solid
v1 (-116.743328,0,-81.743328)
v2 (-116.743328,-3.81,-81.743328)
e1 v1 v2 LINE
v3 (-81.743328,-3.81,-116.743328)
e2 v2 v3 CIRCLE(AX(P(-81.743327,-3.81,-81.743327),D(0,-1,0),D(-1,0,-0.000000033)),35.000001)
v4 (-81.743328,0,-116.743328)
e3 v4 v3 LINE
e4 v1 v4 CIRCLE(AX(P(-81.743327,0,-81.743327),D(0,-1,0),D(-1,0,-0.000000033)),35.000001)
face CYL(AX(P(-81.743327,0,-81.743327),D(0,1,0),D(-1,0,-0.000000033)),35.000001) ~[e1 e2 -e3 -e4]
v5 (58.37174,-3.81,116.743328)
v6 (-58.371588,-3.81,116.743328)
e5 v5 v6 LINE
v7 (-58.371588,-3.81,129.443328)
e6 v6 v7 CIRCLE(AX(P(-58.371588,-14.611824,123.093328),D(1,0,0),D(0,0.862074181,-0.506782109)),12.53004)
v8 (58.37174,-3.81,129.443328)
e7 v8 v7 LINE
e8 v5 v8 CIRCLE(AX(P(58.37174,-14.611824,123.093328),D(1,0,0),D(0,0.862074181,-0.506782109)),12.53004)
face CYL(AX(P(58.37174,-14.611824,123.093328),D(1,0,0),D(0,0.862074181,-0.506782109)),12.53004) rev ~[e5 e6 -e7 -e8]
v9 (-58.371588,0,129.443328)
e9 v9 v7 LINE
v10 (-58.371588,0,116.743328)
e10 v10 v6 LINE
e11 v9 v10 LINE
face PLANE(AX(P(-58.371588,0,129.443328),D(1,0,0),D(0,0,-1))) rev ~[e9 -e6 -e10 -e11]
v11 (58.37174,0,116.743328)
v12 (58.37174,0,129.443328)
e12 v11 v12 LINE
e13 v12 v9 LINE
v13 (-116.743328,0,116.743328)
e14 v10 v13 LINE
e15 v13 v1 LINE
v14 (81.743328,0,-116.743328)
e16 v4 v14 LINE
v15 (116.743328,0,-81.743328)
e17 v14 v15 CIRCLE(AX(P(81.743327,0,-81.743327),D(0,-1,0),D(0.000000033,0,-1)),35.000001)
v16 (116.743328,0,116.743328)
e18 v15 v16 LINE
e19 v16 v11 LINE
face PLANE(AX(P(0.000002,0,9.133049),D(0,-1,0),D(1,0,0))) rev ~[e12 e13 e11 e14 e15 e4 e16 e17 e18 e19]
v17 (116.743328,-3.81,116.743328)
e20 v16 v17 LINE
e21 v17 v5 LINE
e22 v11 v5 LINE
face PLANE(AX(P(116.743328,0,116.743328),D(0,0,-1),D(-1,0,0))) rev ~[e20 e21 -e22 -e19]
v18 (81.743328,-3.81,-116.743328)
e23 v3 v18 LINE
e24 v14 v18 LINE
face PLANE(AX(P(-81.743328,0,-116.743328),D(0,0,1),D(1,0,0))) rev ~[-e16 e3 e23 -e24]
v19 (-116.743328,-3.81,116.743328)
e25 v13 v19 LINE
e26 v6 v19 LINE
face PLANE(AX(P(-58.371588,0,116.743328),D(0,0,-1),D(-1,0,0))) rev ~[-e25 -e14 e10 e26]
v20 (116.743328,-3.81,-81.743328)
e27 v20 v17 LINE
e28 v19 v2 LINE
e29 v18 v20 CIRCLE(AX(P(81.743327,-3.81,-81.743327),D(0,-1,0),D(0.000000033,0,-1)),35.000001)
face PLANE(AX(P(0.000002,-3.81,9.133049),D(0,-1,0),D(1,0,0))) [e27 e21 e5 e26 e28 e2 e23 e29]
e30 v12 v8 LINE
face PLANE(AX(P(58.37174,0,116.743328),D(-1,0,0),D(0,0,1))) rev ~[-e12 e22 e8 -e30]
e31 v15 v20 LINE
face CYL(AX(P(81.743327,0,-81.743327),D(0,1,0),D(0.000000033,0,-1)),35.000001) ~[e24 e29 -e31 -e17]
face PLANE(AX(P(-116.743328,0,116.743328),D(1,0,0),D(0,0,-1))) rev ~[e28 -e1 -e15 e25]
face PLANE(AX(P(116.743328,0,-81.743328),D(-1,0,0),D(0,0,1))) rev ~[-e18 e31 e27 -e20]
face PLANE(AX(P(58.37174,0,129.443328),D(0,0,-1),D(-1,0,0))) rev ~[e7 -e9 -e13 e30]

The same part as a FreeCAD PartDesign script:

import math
import FreeCAD as App
import Part
import Sketcher

doc = App.newDocument("Part")
body = doc.addObject("PartDesign::Body", "Body")

sketch1 = body.newObject("Sketcher::SketchObject", "Sketch")
sketch1.AttachmentSupport = (doc.getObject("XZ_Plane"), [""])
sketch1.MapMode = "FlatFace"
sketch1.addGeometry([
    Part.ArcOfCircle(Part.Circle(App.Vector(-81.743327, -81.743327, 0), App.Vector(0, 0, 1), 35.000001), math.radians(-179.999998), math.radians(-90.000002)),
    Part.LineSegment(App.Vector(-81.743328, -116.743328, 0), App.Vector(81.743328, -116.743328, 0)),
    Part.ArcOfCircle(Part.Circle(App.Vector(81.743327, -81.743327, 0), App.Vector(0, 0, 1), 35.000001), math.radians(-89.999998), math.radians(-0.000002)),
    Part.LineSegment(App.Vector(116.743328, -81.743328, 0), App.Vector(116.743328, 116.743328, 0)),
    Part.LineSegment(App.Vector(116.743328, 116.743328, 0), App.Vector(58.37174, 116.743328, 0)),
    Part.LineSegment(App.Vector(58.37174, 116.743328, 0), App.Vector(58.37174, 129.443328, 0)),
    Part.LineSegment(App.Vector(58.37174, 129.443328, 0), App.Vector(-58.371588, 129.443328, 0)),
    Part.LineSegment(App.Vector(-58.371588, 129.443328, 0), App.Vector(-58.371588, 116.743328, 0)),
    Part.LineSegment(App.Vector(-58.371588, 116.743328, 0), App.Vector(-116.743328, 116.743328, 0)),
    Part.LineSegment(App.Vector(-116.743328, 116.743328, 0), App.Vector(-116.743328, -81.743328, 0)),
], False)
sketch1.addConstraint([
    Sketcher.Constraint("Tangent", 0, 2, 1, 1),
    Sketcher.Constraint("Tangent", 1, 2, 2, 1),
    Sketcher.Constraint("Tangent", 2, 2, 3, 1),
    Sketcher.Constraint("Coincident", 3, 2, 4, 1),
    Sketcher.Constraint("Coincident", 4, 2, 5, 1),
    Sketcher.Constraint("Coincident", 5, 2, 6, 1),
    Sketcher.Constraint("Coincident", 6, 2, 7, 1),
    Sketcher.Constraint("Coincident", 7, 2, 8, 1),
    Sketcher.Constraint("Coincident", 8, 2, 9, 1),
    Sketcher.Constraint("Tangent", 9, 2, 0, 1),
    Sketcher.Constraint("Horizontal", 1),
    Sketcher.Constraint("Vertical", 3),
    Sketcher.Constraint("Horizontal", 4),
    Sketcher.Constraint("Vertical", 5),
    Sketcher.Constraint("Horizontal", 6),
    Sketcher.Constraint("Vertical", 7),
    Sketcher.Constraint("Horizontal", 8),
    Sketcher.Constraint("Vertical", 9),
    Sketcher.Constraint("Equal", 0, 2),
    Sketcher.Constraint("Symmetric", 3, 2, 8, 2, -2),
    Sketcher.Constraint("Radius", 0, 35.000001),
    Sketcher.Constraint("DistanceY", 5, 1, 5, 2, 12.7),
    Sketcher.Constraint("DistanceX", 4, 2, 4, 1, 58.371588),
    Sketcher.Constraint("DistanceX", 6, 2, 6, 1, 116.743328),
    Sketcher.Constraint("DistanceX", 8, 2, 8, 1, 58.37174),
    Sketcher.Constraint("DistanceY", 3, 1, 3, 2, 198.486656),
    Sketcher.Constraint("DistanceY", 1, 2, -1, 1, 116.743328),
])
pad1 = body.newObject("PartDesign::Pad", "Pad")
pad1.Profile = sketch1
pad1.Length = 3.81

sketch2 = body.newObject("Sketcher::SketchObject", "Sketch001")
sketch2.AttachmentSupport = (doc.getObject("YZ_Plane"), [""])
sketch2.MapMode = "FlatFace"
sketch2.AttachmentOffset = App.Placement(App.Vector(0, 0, 58.37174), App.Rotation())
sketch2.addGeometry([
    Part.LineSegment(App.Vector(-3.81, 129.443328, 0), App.Vector(-3.81, 116.743328, 0)),
    Part.ArcOfCircle(Part.Circle(App.Vector(-14.611824, 123.093328, 0), App.Vector(0, 0, 1), 12.53004), math.radians(-30.449724), math.radians(30.449724)),
], False)
sketch2.addConstraint([
    Sketcher.Constraint("Coincident", 0, 1, 1, 2),
    Sketcher.Constraint("Coincident", 1, 1, 0, 2),
    Sketcher.Constraint("Vertical", 0),
    Sketcher.Constraint("DistanceY", 0, 2, 0, 1, 12.7),
    Sketcher.Constraint("DistanceX", 0, 1, -1, 1, 3.81),
    Sketcher.Constraint("Radius", 1, 12.53004),
    Sketcher.Constraint("DistanceY", -1, 1, 1, 3, 123.093328),
])
pocket1 = body.newObject("PartDesign::Pocket", "Pocket")
pocket1.Profile = sketch2
pocket1.Length = 359

doc.recompute()
